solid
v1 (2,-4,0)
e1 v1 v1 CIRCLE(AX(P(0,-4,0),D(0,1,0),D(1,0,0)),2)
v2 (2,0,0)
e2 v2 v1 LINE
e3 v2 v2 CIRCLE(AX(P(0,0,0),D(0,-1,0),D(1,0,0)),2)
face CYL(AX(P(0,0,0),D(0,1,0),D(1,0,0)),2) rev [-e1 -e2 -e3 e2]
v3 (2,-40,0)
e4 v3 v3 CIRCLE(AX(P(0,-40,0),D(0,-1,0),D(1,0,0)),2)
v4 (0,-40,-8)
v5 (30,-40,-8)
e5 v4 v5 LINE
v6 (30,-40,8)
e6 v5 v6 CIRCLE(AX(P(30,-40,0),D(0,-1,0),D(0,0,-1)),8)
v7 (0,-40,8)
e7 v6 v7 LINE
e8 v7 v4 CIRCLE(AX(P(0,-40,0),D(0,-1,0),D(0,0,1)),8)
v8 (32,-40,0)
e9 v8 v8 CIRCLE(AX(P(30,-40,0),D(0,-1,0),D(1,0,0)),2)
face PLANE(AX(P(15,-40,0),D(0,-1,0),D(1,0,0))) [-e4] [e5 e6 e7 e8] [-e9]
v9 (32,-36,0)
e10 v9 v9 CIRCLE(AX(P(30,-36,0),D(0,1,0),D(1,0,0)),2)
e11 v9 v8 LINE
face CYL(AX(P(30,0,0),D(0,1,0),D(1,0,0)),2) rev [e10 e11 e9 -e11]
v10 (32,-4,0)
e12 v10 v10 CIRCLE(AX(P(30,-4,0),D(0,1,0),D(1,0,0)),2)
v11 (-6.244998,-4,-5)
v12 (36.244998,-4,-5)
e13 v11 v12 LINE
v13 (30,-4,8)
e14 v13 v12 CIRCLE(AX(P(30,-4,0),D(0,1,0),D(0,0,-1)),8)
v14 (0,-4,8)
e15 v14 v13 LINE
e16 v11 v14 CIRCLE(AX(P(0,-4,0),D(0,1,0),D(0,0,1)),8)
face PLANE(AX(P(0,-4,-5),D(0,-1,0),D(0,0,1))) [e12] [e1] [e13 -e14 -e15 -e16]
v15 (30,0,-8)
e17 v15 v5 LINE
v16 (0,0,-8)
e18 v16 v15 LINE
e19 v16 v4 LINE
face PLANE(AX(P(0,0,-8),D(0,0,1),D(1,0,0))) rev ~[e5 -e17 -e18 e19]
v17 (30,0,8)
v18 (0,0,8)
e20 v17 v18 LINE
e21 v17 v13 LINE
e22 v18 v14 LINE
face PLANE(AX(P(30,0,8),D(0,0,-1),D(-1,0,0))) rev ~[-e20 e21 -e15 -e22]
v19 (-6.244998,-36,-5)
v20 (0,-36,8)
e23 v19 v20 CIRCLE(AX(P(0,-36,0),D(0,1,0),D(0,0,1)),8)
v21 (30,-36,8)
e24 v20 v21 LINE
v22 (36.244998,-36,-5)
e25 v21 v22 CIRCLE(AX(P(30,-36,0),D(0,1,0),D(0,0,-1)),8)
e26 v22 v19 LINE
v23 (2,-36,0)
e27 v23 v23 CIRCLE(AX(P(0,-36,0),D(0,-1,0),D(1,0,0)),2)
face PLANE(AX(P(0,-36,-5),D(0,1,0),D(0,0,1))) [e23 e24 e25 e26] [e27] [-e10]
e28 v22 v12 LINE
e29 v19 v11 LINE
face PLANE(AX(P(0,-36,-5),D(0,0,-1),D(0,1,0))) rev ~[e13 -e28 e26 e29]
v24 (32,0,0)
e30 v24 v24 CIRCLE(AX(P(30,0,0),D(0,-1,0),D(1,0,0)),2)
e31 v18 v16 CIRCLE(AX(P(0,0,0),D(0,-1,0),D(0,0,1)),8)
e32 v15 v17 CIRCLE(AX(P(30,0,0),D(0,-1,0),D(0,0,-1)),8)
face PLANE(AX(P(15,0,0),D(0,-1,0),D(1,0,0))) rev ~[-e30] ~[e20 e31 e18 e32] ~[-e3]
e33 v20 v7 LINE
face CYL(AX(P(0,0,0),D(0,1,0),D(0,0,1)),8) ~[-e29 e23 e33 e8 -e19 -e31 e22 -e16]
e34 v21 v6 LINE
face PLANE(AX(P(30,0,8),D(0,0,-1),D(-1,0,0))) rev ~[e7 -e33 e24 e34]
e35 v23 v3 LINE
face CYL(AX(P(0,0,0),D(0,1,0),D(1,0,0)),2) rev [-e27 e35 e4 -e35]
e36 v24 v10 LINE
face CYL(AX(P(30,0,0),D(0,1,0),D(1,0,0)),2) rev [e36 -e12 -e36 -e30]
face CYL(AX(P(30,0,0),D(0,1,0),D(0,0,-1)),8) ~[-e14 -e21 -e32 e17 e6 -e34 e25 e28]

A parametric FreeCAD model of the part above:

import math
import FreeCAD as App
import Part
import Sketcher
from FreeCAD import Vector
Q = App.Units.Quantity


def add_polygon(sketch, points):
    """Adds a closed chain of lines whose ends are joined by coincident constraints."""
    first, n = sketch.GeometryCount, len(points)
    for a, b in zip(points, points[1:] + points[:1]):
        sketch.addGeometry(Part.LineSegment(App.Vector(*a, 0), App.Vector(*b, 0)), False)
    for i in range(n):
        sketch.addConstraint(Sketcher.Constraint("Coincident", first + i, 2, first + (i + 1) % n, 1))

doc = App.newDocument("Part")
params = doc.addObject("Spreadsheet::Sheet", "Params")
for row, (alias, value) in enumerate([
    ("sketch1_diameter", "4 mm"),
    ("sketch1_radius", "8 mm"),
    ("sketch1_width", "30 mm"),
    ("pad1_length", "40 mm"),
    ("sketch2_width", "32 mm"),
    ("sketch2_height", "13 mm"),
], start=1):
    params.set(f"A{row}", alias)
    params.set(f"B{row}", "=" + value)
    params.setAlias(f"B{row}", alias)

body = doc.addObject("PartDesign::Body", "Body")

# Sketch on XZ plane
sketch1 = doc.addObject("Sketcher::SketchObject", "Sketch")
body.addObject(sketch1)
sketch1.AttachmentSupport = (doc.XZ_Plane, [""])
sketch1.MapMode = "FlatFace"
sketch1.addGeometry([
    Part.LineSegment(Vector(30, 8, 0), Vector(0, 8, 0)),  # 0
    Part.ArcOfCircle(Part.Circle(Vector(0, 0, 0), Vector(0, 0, 1), 8), math.radians(90), math.radians(270)),  # 1
    Part.LineSegment(Vector(0, -8, 0), Vector(30, -8, 0)),  # 2
    Part.ArcOfCircle(Part.Circle(Vector(30, 0, 0), Vector(0, 0, 1), 8), math.radians(-90), math.radians(90)),  # 3
    Part.Circle(Vector(0, 0, 0), Vector(0, 0, 1), 2),  # 4
    Part.Circle(Vector(30, 0, 0), Vector(0, 0, 1), 2),  # 5
], False)
sketch1.addConstraint([
    Sketcher.Constraint("Tangent", 0, 2, 1, 1),
    Sketcher.Constraint("Tangent", 1, 2, 2, 1),
    Sketcher.Constraint("Tangent", 2, 2, 3, 1),
    Sketcher.Constraint("Tangent", 3, 2, 0, 1),
    Sketcher.Constraint("Horizontal", 0),
    Sketcher.Constraint("Horizontal", 2),
    Sketcher.Constraint("Coincident", 1, 3, -1, 1),
    Sketcher.Constraint("Coincident", 4, 3, -1, 1),
    Sketcher.Constraint("Coincident", 5, 3, 3, 3),
    Sketcher.Constraint("Equal", 4, 5),
    Sketcher.Constraint("Diameter", 4, Q("4 mm")),
    Sketcher.Constraint("Radius", 1, Q("8 mm")),
    Sketcher.Constraint("DistanceX", 0, 2, 0, 1, Q("30 mm")),
])
sketch1.setExpression("Constraints[10]", "Params.sketch1_diameter")
sketch1.setExpression("Constraints[11]", "Params.sketch1_radius")
sketch1.setExpression("Constraints[12]", "Params.sketch1_width")
pad1 = doc.addObject("PartDesign::Pad", "Pad")
body.addObject(pad1)
pad1.Profile = sketch1
pad1.setExpression("Length", "Params.pad1_length")

# Sketch on YZ plane
sketch2 = doc.addObject("Sketcher::SketchObject", "Sketch001")
body.addObject(sketch2)
sketch2.AttachmentSupport = (doc.YZ_Plane, [""])
sketch2.MapMode = "FlatFace"
add_polygon(sketch2, [(-36, 8), (-36, -5), (-4, -5), (-4, 8)])  # lines 0-3
sketch2.addConstraint([
    Sketcher.Constraint("Vertical", 0),
    Sketcher.Constraint("Horizontal", 1),
    Sketcher.Constraint("Vertical", 2),
    Sketcher.Constraint("Horizontal", 3),
    Sketcher.Constraint("DistanceX", 1, 1, 1, 2, Q("32 mm")),
    Sketcher.Constraint("DistanceY", 0, 2, 0, 1, Q("13 mm")),
    Sketcher.Constraint("DistanceX", 0, 2, -1, 1, Q("36 mm")),
    Sketcher.Constraint("DistanceY", 0, 2, -1, 1, Q("5 mm")),
])
sketch2.setExpression("Constraints[8]", "Params.sketch2_width")
sketch2.setExpression("Constraints[9]", "Params.sketch2_height")
pocket1 = doc.addObject("PartDesign::Pocket", "Pocket")
body.addObject(pocket1)
pocket1.Profile = sketch2
pocket1.Type = "ThroughAll"
pocket1.Midplane = True

doc.recompute()
